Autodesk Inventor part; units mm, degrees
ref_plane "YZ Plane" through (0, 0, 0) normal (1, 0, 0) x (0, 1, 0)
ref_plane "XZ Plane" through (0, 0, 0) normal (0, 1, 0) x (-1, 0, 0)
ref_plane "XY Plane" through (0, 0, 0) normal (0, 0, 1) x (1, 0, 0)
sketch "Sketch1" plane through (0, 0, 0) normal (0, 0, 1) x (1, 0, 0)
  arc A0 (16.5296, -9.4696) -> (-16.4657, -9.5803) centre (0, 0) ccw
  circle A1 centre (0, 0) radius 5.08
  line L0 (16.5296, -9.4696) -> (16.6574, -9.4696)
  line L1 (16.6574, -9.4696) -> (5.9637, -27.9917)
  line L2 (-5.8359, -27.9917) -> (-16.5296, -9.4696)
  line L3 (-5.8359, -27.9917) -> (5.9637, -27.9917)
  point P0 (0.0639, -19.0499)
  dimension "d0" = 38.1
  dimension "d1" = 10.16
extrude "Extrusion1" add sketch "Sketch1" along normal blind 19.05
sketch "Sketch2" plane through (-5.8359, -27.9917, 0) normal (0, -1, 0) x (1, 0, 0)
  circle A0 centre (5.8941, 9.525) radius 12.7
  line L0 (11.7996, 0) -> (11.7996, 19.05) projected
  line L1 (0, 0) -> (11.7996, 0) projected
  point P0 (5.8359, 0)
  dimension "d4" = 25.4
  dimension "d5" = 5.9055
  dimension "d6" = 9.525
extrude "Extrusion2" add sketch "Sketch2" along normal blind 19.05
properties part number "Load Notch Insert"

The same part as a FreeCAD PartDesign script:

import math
import FreeCAD as App
import Part
import Sketcher
Q = App.Units.Quantity

doc = App.newDocument("Part")
params = doc.addObject("Spreadsheet::Sheet", "Params")
for row, (alias, value) in enumerate([
    ("sketch1_diameter", "0.4 in"),
    ("sketch1_radius", "0.75 in"),
    ("sketch1_length", "0.837 in"),
    ("pad1_length", "0.75 in"),
    ("sketch2_diameter", "1 in"),
    ("pad2_length", "0.75 in"),
], start=1):
    params.set(f"A{row}", alias)
    params.set(f"B{row}", "=" + value)
    params.setAlias(f"B{row}", alias)

body = doc.addObject("PartDesign::Body", "Body")

# Sketch on XY plane
sketch1 = body.newObject("Sketcher::SketchObject", "Sketch")
sketch1.AttachmentSupport = (doc.getObject("XY_Plane"), [""])
sketch1.MapMode = "FlatFace"
sketch1.addGeometry(Part.LineSegment(App.Vector(16.66, -9.47, 0), App.Vector(16.53, -9.47, 0)), False)
sketch1.addGeometry(Part.ArcOfCircle(Part.Circle(App.Vector(0, 0, 0), App.Vector(0, 0, 1), 19.05), math.radians(-30), math.radians(210)), False)
sketch1.addGeometry(Part.LineSegment(App.Vector(-16.47, -9.58, 0), App.Vector(-5.84, -27.99, 0)), False)
sketch1.addGeometry(Part.LineSegment(App.Vector(-5.84, -27.99, 0), App.Vector(5.96, -27.99, 0)), False)
sketch1.addGeometry(Part.LineSegment(App.Vector(5.96, -27.99, 0), App.Vector(16.66, -9.47, 0)), False)
sketch1.addGeometry(Part.Circle(App.Vector(0, 0, 0), App.Vector(0, 0, 1), 5.08), False)
sketch1.addConstraint(Sketcher.Constraint("Coincident", 0, 2, 1, 1))
sketch1.addConstraint(Sketcher.Constraint("Coincident", 1, 2, 2, 1))
sketch1.addConstraint(Sketcher.Constraint("Coincident", 2, 2, 3, 1))
sketch1.addConstraint(Sketcher.Constraint("Coincident", 3, 2, 4, 1))
sketch1.addConstraint(Sketcher.Constraint("Coincident", 4, 2, 0, 1))
sketch1.addConstraint(Sketcher.Constraint("Horizontal", 0))
sketch1.addConstraint(Sketcher.Constraint("Horizontal", 3))
sketch1.addConstraint(Sketcher.Constraint("Coincident", 1, 3, -1, 1))
sketch1.addConstraint(Sketcher.Constraint("Coincident", 5, 3, -1, 1))
sketch1.addConstraint(Sketcher.Constraint("Diameter", 5, Q("0.4 in")))
sketch1.addConstraint(Sketcher.Constraint("Radius", 1, Q("0.75 in")))
sketch1.addConstraint(Sketcher.Constraint("Angle", 2, Q("-60 deg")))
sketch1.addConstraint(Sketcher.Constraint("Angle", 4, Q("60 deg")))
sketch1.addConstraint(Sketcher.Constraint("Distance", 2, Q("0.837 in")))
sketch1.addConstraint(Sketcher.Constraint("DistanceX", 3, 2, 4, 2, Q("0.421 in")))
sketch1.addConstraint(Sketcher.Constraint("DistanceX", 0, 2, 0, 1, 0.1278))
sketch1.addConstraint(Sketcher.Constraint("DistanceX", 3, 1, 3, 2, 11.7996))
sketch1.setExpression("Constraints[9]", "Params.sketch1_diameter")
sketch1.setExpression("Constraints[10]", "Params.sketch1_radius")
sketch1.setExpression("Constraints[13]", "Params.sketch1_length")
pad1 = body.newObject("PartDesign::Pad", "Pad")
pad1.Profile = sketch1
pad1.setExpression("Length", "Params.pad1_length")

# Sketch on XZ plane
sketch2 = body.newObject("Sketcher::SketchObject", "Sketch001")
sketch2.AttachmentSupport = (doc.getObject("XZ_Plane"), [""])
sketch2.MapMode = "FlatFace"
sketch2.AttachmentOffset = App.Placement(App.Vector(0, 0, 27.9917), App.Rotation())
sketch2.addGeometry(Part.Circle(App.Vector(0, 10, 0), App.Vector(0, 0, 1), 13), False)
sketch2.addConstraint(Sketcher.Constraint("Diameter", 0, Q("1 in")))
sketch2.addConstraint(Sketcher.Constraint("DistanceY", -1, 1, 0, 3, Q("0.375 in")))
sketch2.addConstraint(Sketcher.Constraint("DistanceX", -1, 1, 0, 3, Q("0.0023 in")))
sketch2.setExpression("Constraints[0]", "Params.sketch2_diameter")
pad2 = body.newObject("PartDesign::Pad", "Pad001")
pad2.Profile = sketch2
pad2.setExpression("Length", "Params.pad2_length")

doc.recompute()
